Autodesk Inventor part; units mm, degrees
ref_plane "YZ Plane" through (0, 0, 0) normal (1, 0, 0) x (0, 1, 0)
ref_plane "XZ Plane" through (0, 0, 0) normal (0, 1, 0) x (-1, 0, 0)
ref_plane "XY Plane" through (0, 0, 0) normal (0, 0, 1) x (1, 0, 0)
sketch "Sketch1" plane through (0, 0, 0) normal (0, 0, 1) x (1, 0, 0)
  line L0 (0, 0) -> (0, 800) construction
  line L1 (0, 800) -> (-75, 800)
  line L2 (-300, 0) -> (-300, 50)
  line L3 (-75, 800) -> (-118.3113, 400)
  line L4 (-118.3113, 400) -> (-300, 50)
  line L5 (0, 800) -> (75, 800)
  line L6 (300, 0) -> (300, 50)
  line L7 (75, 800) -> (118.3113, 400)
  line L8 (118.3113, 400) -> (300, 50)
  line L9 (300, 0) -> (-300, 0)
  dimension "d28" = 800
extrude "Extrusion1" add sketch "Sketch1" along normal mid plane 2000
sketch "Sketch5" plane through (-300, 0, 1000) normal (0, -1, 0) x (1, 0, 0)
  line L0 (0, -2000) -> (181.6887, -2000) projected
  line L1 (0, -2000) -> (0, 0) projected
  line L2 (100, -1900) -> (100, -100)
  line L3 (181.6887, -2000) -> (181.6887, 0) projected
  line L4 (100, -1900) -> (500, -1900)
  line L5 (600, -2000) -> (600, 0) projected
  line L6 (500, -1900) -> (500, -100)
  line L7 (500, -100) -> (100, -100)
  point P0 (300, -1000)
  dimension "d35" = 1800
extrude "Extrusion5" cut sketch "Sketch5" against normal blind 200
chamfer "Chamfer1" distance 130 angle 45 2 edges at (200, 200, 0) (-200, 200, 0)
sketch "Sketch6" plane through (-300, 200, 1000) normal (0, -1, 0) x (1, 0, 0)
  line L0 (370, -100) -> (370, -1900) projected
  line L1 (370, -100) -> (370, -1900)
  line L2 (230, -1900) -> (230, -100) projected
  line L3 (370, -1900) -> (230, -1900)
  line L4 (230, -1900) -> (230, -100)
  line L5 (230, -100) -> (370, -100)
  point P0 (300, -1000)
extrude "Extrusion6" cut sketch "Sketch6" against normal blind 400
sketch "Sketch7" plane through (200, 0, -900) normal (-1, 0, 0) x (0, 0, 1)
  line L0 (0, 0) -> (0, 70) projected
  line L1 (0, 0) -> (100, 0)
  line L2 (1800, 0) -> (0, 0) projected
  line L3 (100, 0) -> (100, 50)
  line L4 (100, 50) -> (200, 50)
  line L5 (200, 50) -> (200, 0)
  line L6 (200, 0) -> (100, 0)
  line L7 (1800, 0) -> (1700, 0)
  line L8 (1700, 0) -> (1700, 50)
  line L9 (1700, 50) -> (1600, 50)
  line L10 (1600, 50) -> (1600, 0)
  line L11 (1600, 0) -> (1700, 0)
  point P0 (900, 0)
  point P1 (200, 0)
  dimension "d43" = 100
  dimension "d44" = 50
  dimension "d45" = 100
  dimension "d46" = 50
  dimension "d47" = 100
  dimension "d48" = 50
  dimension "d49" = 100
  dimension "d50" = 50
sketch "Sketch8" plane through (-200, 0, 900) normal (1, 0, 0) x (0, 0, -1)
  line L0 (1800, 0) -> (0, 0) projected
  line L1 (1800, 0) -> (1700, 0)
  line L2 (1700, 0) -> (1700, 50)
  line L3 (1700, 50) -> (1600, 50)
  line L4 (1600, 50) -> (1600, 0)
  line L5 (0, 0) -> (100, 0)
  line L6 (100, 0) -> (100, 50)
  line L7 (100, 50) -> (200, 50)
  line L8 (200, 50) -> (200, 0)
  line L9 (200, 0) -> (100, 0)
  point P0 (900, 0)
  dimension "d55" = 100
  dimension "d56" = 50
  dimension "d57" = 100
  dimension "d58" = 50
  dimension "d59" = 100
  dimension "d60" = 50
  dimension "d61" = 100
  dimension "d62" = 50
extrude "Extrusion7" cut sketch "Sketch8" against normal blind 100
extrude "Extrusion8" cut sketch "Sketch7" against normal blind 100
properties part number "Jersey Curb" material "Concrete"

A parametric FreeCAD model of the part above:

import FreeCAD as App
import Part
import Sketcher

V = App.Vector
Q = App.Units.Quantity


def edges_at(feature, points):
    """Names of the edges that pass closest to the given points."""
    edges = feature.Shape.Edges
    near = lambda p: min(range(len(edges)), key=lambda i: edges[i].distToShape(Part.Vertex(*p))[0])
    return sorted({f"Edge{near(p) + 1}" for p in points})


def add_polygon(sketch, points):
    """Adds a closed chain of lines whose ends are joined by coincident constraints."""
    first, n = sketch.GeometryCount, len(points)
    for a, b in zip(points, points[1:] + points[:1]):
        sketch.addGeometry(Part.LineSegment(App.Vector(*a, 0), App.Vector(*b, 0)), False)
    for i in range(n):
        sketch.addConstraint(Sketcher.Constraint("Coincident", first + i, 2, first + (i + 1) % n, 1))

doc = App.newDocument("Part")
body = doc.addObject("PartDesign::Body", "Body")

# Sketch on XY plane
sketch1 = doc.addObject("Sketcher::SketchObject", "Sketch")
body.addObject(sketch1)
sketch1.AttachmentSupport = (doc.XY_Plane, [""])
sketch1.MapMode = "FlatFace"
add_polygon(sketch1, [(75, 800), (-75, 800), (-118, 400), (-300, 50), (-300, 0), (300, 0), (300, 50), (118, 400)])  # lines 0-7
sketch1.addConstraint([
    Sketcher.Constraint("Horizontal", 0),
    Sketcher.Constraint("Vertical", 3),
    Sketcher.Constraint("Horizontal", 4),
    Sketcher.Constraint("Vertical", 5),
    Sketcher.Constraint("Symmetric", 3, 2, 4, 2, -1, 1),
    Sketcher.Constraint("Symmetric", 1, 2, 6, 2, -2),
    Sketcher.Constraint("Horizontal", 2, 2, 5, 2),
    Sketcher.Constraint("Equal", 1, 7),
    Sketcher.Constraint("DistanceY", -1, 1, 0, 2, Q("800 mm")),
    Sketcher.Constraint("DistanceX", 0, 2, 0, 1, Q("150 mm")),
    Sketcher.Constraint("DistanceX", 4, 1, 4, 2, Q("600 mm")),
    Sketcher.Constraint("DistanceY", 3, 2, 3, 1, Q("50 mm")),
    Sketcher.Constraint("DistanceY", -1, 1, 1, 2, Q("400 mm")),
    Sketcher.Constraint("Angle", 1, Q("-96.1798 deg")),
])
pad1 = doc.addObject("PartDesign::Pad", "Pad")
body.addObject(pad1)
pad1.Profile = sketch1
pad1.Length = 2000
pad1.Midplane = True

# Sketch on XZ plane
sketch2 = doc.addObject("Sketcher::SketchObject", "Sketch001")
body.addObject(sketch2)
sketch2.AttachmentSupport = (doc.XZ_Plane, [""])
sketch2.MapMode = "FlatFace"
add_polygon(sketch2, [(-200, 900), (-200, -900), (200, -900), (200, 900)])  # lines 0-3
sketch2.addConstraint([
    Sketcher.Constraint("Vertical", 0),
    Sketcher.Constraint("Horizontal", 1),
    Sketcher.Constraint("Vertical", 2),
    Sketcher.Constraint("Horizontal", 3),
    Sketcher.Constraint("Symmetric", 0, 2, 2, 2, -1, 1),
    Sketcher.Constraint("DistanceY", 0, 2, 0, 1, Q("1800 mm")),
    Sketcher.Constraint("DistanceX", 1, 1, 1, 2, Q("400 mm")),
])
pocket1 = doc.addObject("PartDesign::Pocket", "Pocket")
body.addObject(pocket1)
pocket1.Profile = sketch2
pocket1.Length = 200
doc.recompute()

chamfer = doc.addObject("PartDesign::Chamfer", "Chamfer")
body.addObject(chamfer)
chamfer.Base = (pocket1, edges_at(pocket1, [(200, 200, 0), (-200, 200, 0)]))
chamfer.Size = 130

# Sketch on XZ plane
sketch3 = doc.addObject("Sketcher::SketchObject", "Sketch002")
body.addObject(sketch3)
sketch3.AttachmentSupport = (doc.XZ_Plane, [""])
sketch3.MapMode = "FlatFace"
sketch3.AttachmentOffset = App.Placement(V(0, 0, -200), App.Rotation())
add_polygon(sketch3, [(70, -900), (70, 900), (-70, 900), (-70, -900)])  # lines 0-3
sketch3.addConstraint([
    Sketcher.Constraint("Vertical", 0),
    Sketcher.Constraint("Horizontal", 1),
    Sketcher.Constraint("Vertical", 2),
    Sketcher.Constraint("Horizontal", 3),
    Sketcher.Constraint("Symmetric", 0, 2, 2, 2, -1, 1),
    Sketcher.Constraint("DistanceX", 1, 2, 1, 1, Q("140 mm")),
    Sketcher.Constraint("DistanceY", 0, 1, 0, 2, Q("1800 mm")),
])
pocket2 = doc.addObject("PartDesign::Pocket", "Pocket001")
body.addObject(pocket2)
pocket2.Profile = sketch3
pocket2.Length = 400

# Sketch on YZ plane
sketch4 = doc.addObject("Sketcher::SketchObject", "Sketch003")
body.addObject(sketch4)
sketch4.AttachmentSupport = (doc.YZ_Plane, [""])
sketch4.MapMode = "FlatFace"
sketch4.AttachmentOffset = App.Placement(V(0, 0, -200), App.Rotation())
add_polygon(sketch4, [(0, 800), (0, 700), (50, 700), (50, 800)])  # lines 0-3
add_polygon(sketch4, [(0, -700), (0, -800), (50, -800), (50, -700)])  # lines 4-7
sketch4.addConstraint([
    Sketcher.Constraint("Vertical", 0),
    Sketcher.Constraint("Horizontal", 1),
    Sketcher.Constraint("Vertical", 2),
    Sketcher.Constraint("Horizontal", 3),
    Sketcher.Constraint("Vertical", 4),
    Sketcher.Constraint("Horizontal", 5),
    Sketcher.Constraint("Vertical", 6),
    Sketcher.Constraint("Horizontal", 7),
    Sketcher.Constraint("Symmetric", 3, 2, 4, 2, -1, 1),
    Sketcher.Constraint("Symmetric", 1, 2, 6, 2, -1),
    Sketcher.Constraint("PointOnObject", 0, 2, -2),
    Sketcher.Constraint("DistanceX", 1, 1, 1, 2, Q("50 mm")),
    Sketcher.Constraint("DistanceY", 0, 2, 0, 1, Q("100 mm")),
    Sketcher.Constraint("DistanceY", -1, 1, 0, 2, Q("700 mm")),
])
pocket3 = doc.addObject("PartDesign::Pocket", "Pocket002")
body.addObject(pocket3)
pocket3.Profile = sketch4
pocket3.Length = 100

# Sketch on YZ plane
sketch5 = doc.addObject("Sketcher::SketchObject", "Sketch004")
body.addObject(sketch5)
sketch5.AttachmentSupport = (doc.YZ_Plane, [""])
sketch5.MapMode = "FlatFace"
sketch5.AttachmentOffset = App.Placement(V(0, 0, 200), App.Rotation())
add_polygon(sketch5, [(0, -800), (0, -700), (50, -700), (50, -800)])  # lines 0-3
add_polygon(sketch5, [(0, 700), (0, 800), (50, 800), (50, 700)])  # lines 4-7
sketch5.addConstraint([
    Sketcher.Constraint("Vertical", 0),
    Sketcher.Constraint("Horizontal", 1),
    Sketcher.Constraint("Vertical", 2),
    Sketcher.Constraint("Horizontal", 3),
    Sketcher.Constraint("Vertical", 4),
    Sketcher.Constraint("Horizontal", 5),
    Sketcher.Constraint("Vertical", 6),
    Sketcher.Constraint("Horizontal", 7),
    Sketcher.Constraint("Symmetric", 3, 2, 4, 2, -1, 1),
    Sketcher.Constraint("Symmetric", 1, 2, 6, 2, -1),
    Sketcher.Constraint("PointOnObject", 0, 2, -2),
    Sketcher.Constraint("DistanceX", 1, 1, 1, 2, Q("50 mm")),
    Sketcher.Constraint("DistanceY", 0, 1, 0, 2, Q("100 mm")),
    Sketcher.Constraint("DistanceY", 0, 2, -1, 1, Q("700 mm")),
])
pocket4 = doc.addObject("PartDesign::Pocket", "Pocket003")
body.addObject(pocket4)
pocket4.Profile = sketch5
pocket4.Length = 100
pocket4.Reversed = True

doc.recompute()
